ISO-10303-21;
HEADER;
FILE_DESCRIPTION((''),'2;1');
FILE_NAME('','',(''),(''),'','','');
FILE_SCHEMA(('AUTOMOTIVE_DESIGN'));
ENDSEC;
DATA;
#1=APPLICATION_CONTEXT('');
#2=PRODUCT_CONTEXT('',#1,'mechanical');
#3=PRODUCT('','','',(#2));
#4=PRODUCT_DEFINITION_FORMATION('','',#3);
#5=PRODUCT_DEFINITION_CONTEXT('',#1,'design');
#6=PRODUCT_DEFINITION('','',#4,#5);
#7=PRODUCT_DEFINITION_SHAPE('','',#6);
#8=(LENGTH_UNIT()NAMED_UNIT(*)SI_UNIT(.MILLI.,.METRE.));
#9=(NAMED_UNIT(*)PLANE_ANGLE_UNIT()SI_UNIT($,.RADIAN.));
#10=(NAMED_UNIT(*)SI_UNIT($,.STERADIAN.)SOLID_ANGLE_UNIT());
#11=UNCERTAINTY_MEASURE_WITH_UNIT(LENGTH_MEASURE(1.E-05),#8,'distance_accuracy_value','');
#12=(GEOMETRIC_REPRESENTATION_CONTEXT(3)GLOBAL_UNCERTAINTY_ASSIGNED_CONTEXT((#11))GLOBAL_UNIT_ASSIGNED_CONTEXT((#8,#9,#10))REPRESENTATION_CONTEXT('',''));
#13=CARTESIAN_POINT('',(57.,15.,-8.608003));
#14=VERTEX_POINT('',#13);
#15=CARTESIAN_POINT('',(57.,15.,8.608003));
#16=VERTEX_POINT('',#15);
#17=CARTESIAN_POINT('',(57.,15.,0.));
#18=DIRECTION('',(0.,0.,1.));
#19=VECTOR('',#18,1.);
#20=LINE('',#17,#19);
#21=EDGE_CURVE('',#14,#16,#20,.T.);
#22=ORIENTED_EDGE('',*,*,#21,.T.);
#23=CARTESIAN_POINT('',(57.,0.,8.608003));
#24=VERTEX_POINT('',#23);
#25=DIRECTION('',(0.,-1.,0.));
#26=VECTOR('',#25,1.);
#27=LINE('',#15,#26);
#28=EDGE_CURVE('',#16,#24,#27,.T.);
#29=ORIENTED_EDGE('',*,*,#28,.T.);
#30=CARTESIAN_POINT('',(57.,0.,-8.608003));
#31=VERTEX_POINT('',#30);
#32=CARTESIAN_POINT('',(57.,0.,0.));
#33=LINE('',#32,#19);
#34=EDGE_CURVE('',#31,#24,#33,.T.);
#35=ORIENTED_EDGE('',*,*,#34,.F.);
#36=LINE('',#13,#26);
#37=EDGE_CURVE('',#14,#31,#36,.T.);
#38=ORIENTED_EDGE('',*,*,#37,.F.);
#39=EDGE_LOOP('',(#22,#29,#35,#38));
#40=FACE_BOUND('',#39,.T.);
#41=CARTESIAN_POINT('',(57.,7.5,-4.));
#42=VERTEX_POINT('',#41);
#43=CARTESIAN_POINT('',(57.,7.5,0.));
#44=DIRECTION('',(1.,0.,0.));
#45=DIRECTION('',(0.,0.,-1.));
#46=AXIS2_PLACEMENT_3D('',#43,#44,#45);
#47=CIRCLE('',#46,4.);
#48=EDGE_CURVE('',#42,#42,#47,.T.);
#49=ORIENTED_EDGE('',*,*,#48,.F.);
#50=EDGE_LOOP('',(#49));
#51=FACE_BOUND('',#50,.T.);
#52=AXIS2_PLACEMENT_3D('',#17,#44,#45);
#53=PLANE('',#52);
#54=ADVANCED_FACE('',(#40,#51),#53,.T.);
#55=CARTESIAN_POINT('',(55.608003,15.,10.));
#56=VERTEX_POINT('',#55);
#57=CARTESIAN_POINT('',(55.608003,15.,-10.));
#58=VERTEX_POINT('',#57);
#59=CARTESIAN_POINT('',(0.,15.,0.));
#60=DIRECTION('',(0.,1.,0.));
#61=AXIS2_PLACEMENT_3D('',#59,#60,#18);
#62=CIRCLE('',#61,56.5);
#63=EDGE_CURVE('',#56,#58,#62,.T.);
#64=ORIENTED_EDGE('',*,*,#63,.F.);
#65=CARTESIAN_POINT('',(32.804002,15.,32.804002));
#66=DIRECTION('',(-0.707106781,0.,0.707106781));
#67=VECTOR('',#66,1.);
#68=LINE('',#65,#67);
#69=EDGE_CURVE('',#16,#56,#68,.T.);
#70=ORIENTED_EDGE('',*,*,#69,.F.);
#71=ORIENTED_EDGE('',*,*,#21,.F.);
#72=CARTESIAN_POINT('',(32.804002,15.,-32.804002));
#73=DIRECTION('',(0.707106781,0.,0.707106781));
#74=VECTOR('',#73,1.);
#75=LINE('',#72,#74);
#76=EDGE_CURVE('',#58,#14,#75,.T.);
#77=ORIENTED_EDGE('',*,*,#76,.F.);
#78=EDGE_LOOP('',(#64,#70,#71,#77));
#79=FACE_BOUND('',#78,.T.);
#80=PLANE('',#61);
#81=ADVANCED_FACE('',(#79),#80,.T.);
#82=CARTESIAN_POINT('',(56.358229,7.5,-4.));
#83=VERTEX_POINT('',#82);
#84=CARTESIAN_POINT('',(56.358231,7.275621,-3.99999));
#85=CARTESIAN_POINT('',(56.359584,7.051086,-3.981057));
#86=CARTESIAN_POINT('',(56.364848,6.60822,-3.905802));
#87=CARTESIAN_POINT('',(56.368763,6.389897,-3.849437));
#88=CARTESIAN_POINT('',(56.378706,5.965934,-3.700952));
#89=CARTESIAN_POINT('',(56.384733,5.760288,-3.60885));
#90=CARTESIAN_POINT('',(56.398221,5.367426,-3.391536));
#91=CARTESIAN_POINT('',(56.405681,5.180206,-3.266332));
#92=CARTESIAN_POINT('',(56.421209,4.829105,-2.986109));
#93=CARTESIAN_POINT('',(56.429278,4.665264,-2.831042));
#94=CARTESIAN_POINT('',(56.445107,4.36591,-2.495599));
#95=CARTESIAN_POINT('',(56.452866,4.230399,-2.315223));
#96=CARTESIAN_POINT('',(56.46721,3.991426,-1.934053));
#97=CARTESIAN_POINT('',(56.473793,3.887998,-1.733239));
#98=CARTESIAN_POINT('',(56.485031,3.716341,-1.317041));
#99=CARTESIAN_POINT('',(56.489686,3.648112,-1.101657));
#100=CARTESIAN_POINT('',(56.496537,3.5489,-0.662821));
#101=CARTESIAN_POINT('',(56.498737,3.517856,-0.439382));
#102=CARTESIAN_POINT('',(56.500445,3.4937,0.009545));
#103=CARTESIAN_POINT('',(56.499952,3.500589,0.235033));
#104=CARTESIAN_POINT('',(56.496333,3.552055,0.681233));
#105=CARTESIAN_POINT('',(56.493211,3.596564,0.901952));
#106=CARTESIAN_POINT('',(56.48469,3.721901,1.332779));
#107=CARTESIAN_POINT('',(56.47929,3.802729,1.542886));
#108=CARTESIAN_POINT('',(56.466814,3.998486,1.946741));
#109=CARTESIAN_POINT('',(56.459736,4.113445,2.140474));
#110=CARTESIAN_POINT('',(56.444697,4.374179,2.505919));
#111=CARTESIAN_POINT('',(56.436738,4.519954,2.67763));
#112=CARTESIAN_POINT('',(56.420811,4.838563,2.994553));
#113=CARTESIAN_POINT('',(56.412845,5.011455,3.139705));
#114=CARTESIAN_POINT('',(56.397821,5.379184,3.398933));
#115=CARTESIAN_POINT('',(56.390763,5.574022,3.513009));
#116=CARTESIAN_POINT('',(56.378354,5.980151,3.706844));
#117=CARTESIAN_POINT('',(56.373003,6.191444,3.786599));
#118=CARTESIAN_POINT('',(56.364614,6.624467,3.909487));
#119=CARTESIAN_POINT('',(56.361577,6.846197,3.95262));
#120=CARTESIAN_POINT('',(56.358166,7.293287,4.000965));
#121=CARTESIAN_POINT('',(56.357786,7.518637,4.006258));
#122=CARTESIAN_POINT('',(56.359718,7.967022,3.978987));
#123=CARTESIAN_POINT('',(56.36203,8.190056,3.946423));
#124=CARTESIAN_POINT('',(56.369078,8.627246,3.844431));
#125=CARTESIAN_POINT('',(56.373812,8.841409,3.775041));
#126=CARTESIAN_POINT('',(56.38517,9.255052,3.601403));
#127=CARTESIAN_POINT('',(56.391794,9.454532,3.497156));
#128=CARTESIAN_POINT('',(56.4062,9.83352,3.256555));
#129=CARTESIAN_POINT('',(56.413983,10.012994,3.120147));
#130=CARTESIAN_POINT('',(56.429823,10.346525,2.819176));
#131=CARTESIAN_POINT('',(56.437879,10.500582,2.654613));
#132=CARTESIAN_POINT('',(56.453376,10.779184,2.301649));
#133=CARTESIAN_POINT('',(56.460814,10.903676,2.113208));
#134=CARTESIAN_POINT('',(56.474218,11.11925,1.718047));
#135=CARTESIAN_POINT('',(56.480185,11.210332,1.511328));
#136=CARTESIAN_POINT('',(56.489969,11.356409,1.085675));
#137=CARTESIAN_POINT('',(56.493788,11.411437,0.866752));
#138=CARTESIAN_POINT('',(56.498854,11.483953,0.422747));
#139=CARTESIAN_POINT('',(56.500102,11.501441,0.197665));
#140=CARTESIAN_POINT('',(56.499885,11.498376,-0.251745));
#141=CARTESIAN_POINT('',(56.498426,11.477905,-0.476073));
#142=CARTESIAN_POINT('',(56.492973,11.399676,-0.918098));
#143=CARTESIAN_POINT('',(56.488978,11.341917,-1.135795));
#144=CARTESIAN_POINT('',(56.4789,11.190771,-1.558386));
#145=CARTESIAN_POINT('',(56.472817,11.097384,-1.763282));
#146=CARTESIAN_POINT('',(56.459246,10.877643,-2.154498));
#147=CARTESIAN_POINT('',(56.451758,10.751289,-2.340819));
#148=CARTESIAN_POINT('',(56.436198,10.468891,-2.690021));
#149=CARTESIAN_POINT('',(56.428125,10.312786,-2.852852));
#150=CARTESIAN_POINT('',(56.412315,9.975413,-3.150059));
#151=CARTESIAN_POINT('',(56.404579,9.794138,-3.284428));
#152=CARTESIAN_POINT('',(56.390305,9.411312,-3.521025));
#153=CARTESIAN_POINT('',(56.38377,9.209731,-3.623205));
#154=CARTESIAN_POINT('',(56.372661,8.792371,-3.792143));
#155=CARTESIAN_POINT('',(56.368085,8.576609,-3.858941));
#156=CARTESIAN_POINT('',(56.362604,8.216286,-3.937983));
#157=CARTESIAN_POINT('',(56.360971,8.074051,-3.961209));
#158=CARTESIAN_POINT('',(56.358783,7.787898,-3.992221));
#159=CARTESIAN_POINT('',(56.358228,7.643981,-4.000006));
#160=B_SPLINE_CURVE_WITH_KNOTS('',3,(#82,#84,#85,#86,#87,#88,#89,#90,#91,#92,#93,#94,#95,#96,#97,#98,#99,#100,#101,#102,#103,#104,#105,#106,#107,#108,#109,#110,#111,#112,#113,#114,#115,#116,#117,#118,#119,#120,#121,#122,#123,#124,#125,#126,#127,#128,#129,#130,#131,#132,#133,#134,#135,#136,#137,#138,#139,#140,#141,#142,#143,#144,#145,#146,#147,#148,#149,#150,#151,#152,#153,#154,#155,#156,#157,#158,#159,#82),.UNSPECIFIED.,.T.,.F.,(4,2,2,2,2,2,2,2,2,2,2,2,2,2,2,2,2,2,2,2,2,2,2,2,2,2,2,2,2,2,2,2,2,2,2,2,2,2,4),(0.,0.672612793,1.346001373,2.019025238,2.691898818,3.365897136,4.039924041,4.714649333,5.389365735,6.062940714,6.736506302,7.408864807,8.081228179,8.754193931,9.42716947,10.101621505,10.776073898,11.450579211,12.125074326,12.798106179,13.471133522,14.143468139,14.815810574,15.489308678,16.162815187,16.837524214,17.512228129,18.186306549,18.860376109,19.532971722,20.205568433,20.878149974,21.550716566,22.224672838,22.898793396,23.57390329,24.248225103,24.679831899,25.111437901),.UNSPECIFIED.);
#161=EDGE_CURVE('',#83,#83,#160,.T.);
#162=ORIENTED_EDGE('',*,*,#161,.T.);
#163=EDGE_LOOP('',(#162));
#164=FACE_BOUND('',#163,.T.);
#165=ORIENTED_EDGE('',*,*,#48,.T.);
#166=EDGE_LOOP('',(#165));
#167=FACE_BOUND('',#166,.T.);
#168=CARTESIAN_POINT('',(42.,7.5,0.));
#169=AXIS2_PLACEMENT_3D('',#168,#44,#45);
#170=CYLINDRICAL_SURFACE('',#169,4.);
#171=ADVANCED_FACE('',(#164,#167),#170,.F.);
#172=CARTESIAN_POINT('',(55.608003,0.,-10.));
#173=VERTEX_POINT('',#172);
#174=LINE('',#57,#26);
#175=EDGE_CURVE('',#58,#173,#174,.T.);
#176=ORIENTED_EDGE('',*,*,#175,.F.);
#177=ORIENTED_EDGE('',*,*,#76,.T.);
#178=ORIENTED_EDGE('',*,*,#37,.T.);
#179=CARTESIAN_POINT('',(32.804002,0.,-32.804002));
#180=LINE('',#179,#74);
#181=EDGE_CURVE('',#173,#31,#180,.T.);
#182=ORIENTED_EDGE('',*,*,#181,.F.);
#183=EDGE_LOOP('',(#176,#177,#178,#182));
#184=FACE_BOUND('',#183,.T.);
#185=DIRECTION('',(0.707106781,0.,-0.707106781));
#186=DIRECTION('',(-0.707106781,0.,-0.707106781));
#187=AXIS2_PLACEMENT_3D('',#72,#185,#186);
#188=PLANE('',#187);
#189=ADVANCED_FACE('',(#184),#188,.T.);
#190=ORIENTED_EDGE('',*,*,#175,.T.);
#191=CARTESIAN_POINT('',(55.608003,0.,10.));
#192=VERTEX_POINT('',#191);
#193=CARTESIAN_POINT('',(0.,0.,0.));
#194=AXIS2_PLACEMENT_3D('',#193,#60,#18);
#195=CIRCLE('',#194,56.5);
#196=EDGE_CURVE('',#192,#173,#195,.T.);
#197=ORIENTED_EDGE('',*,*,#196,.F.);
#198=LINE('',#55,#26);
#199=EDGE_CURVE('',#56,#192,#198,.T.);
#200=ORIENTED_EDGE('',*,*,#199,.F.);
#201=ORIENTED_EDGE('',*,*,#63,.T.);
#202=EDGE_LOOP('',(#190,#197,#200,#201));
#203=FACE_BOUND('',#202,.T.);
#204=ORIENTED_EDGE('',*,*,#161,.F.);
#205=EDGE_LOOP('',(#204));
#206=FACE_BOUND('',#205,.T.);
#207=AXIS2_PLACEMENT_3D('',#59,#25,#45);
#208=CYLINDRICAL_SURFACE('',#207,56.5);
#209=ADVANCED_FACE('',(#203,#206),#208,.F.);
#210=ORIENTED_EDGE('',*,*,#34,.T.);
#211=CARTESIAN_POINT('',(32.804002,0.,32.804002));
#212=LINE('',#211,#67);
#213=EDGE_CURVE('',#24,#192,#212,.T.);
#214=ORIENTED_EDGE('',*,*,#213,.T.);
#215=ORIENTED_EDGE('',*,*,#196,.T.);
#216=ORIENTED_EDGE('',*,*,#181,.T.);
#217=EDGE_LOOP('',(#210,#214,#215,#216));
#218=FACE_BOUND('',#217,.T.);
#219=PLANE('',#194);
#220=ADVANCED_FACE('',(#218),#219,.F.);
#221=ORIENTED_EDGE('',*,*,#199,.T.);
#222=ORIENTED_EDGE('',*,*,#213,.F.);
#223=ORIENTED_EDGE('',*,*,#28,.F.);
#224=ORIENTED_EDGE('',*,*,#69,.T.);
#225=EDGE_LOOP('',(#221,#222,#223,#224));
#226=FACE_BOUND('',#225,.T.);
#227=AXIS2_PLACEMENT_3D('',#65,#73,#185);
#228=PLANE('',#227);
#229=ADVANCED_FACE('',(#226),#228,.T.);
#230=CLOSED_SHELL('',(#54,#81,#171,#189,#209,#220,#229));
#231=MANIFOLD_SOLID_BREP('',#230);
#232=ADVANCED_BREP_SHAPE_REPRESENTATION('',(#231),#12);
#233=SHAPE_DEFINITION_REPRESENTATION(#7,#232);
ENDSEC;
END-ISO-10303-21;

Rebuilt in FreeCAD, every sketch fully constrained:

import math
import FreeCAD as App
import Part
import Sketcher
from FreeCAD import Vector

doc = App.newDocument("Part")
body = doc.addObject("PartDesign::Body", "Body")

# Sketch on XZ plane
sketch1 = body.newObject("Sketcher::SketchObject", "Sketch")
sketch1.AttachmentSupport = (doc.getObject("XZ_Plane"), [""])
sketch1.MapMode = "FlatFace"
sketch1.addGeometry([
    Part.ArcOfCircle(Part.Circle(Vector(0, 0, 0), Vector(0, 0, 1), 56.5), math.radians(-10.19), math.radians(0)),  # 0
    Part.ArcOfCircle(Part.Circle(Vector(0, 0, 0), Vector(0, 0, 1), 56.5), math.radians(0), math.radians(10.19)),  # 1
    Part.LineSegment(Vector(55.6, 10, 0), Vector(57, 8.6, 0)),  # 2
    Part.LineSegment(Vector(57, 8.6, 0), Vector(57, -8.6, 0)),  # 3
    Part.LineSegment(Vector(57, -8.6, 0), Vector(55.6, -10, 0)),  # 4
], False)
sketch1.addConstraint([
    Sketcher.Constraint("Tangent", 0, 2, 1, 1),
    Sketcher.Constraint("Coincident", 1, 2, 2, 1),
    Sketcher.Constraint("Coincident", 2, 2, 3, 1),
    Sketcher.Constraint("Coincident", 3, 2, 4, 1),
    Sketcher.Constraint("Coincident", 4, 2, 0, 1),
    Sketcher.Constraint("Vertical", 3),
    Sketcher.Constraint("Coincident", 0, 3, -1, 1),
    Sketcher.Constraint("Equal", 0, 1),
    Sketcher.Constraint("PointOnObject", 0, 2, -1),
    Sketcher.Constraint("Perpendicular", 2, 4),
    Sketcher.Constraint("Vertical", 1, 2, 4, 2),
    Sketcher.Constraint("Equal", 2, 4),
    Sketcher.Constraint("Radius", 0, 56.5),
    Sketcher.Constraint("DistanceY", -1, 1, 1, 2, 10.0),
    Sketcher.Constraint("DistanceX", -1, 1, 2, 2, 57.0),
])
pad1 = body.newObject("PartDesign::Pad", "Pad")
pad1.Profile = sketch1
pad1.Length = 15
pad1.Reversed = True

# Sketch on YZ plane
sketch2 = body.newObject("Sketcher::SketchObject", "Sketch001")
sketch2.AttachmentSupport = (doc.getObject("YZ_Plane"), [""])
sketch2.MapMode = "FlatFace"
sketch2.AttachmentOffset = App.Placement(Vector(0, 0, 67), App.Rotation())
sketch2.addGeometry([
    Part.ArcOfCircle(Part.Circle(Vector(7.5, 0, 0), Vector(0, 0, 1), 4), math.radians(0), math.radians(180)),
    Part.ArcOfCircle(Part.Circle(Vector(7.5, 0, 0), Vector(0, 0, 1), 4), math.radians(180), math.radians(270)),
    Part.ArcOfCircle(Part.Circle(Vector(7.5, 0, 0), Vector(0, 0, 1), 4), math.radians(-90), math.radians(0)),
], False)
sketch2.addConstraint([
    Sketcher.Constraint("Tangent", 0, 2, 1, 1),
    Sketcher.Constraint("Tangent", 1, 2, 2, 1),
    Sketcher.Constraint("Tangent", 2, 2, 0, 1),
    Sketcher.Constraint("PointOnObject", 0, 3, -1),
    Sketcher.Constraint("PointOnObject", 0, 2, -1),
    Sketcher.Constraint("PointOnObject", 2, 2, -1),
    Sketcher.Constraint("Vertical", 2, 3, 1, 2),
    Sketcher.Constraint("Radius", 0, 4.0),
    Sketcher.Constraint("DistanceX", -1, 1, 0, 3, 7.5),
])
pocket1 = body.newObject("PartDesign::Pocket", "Pocket")
pocket1.Profile = sketch2
pocket1.Length = 25

doc.recompute()
